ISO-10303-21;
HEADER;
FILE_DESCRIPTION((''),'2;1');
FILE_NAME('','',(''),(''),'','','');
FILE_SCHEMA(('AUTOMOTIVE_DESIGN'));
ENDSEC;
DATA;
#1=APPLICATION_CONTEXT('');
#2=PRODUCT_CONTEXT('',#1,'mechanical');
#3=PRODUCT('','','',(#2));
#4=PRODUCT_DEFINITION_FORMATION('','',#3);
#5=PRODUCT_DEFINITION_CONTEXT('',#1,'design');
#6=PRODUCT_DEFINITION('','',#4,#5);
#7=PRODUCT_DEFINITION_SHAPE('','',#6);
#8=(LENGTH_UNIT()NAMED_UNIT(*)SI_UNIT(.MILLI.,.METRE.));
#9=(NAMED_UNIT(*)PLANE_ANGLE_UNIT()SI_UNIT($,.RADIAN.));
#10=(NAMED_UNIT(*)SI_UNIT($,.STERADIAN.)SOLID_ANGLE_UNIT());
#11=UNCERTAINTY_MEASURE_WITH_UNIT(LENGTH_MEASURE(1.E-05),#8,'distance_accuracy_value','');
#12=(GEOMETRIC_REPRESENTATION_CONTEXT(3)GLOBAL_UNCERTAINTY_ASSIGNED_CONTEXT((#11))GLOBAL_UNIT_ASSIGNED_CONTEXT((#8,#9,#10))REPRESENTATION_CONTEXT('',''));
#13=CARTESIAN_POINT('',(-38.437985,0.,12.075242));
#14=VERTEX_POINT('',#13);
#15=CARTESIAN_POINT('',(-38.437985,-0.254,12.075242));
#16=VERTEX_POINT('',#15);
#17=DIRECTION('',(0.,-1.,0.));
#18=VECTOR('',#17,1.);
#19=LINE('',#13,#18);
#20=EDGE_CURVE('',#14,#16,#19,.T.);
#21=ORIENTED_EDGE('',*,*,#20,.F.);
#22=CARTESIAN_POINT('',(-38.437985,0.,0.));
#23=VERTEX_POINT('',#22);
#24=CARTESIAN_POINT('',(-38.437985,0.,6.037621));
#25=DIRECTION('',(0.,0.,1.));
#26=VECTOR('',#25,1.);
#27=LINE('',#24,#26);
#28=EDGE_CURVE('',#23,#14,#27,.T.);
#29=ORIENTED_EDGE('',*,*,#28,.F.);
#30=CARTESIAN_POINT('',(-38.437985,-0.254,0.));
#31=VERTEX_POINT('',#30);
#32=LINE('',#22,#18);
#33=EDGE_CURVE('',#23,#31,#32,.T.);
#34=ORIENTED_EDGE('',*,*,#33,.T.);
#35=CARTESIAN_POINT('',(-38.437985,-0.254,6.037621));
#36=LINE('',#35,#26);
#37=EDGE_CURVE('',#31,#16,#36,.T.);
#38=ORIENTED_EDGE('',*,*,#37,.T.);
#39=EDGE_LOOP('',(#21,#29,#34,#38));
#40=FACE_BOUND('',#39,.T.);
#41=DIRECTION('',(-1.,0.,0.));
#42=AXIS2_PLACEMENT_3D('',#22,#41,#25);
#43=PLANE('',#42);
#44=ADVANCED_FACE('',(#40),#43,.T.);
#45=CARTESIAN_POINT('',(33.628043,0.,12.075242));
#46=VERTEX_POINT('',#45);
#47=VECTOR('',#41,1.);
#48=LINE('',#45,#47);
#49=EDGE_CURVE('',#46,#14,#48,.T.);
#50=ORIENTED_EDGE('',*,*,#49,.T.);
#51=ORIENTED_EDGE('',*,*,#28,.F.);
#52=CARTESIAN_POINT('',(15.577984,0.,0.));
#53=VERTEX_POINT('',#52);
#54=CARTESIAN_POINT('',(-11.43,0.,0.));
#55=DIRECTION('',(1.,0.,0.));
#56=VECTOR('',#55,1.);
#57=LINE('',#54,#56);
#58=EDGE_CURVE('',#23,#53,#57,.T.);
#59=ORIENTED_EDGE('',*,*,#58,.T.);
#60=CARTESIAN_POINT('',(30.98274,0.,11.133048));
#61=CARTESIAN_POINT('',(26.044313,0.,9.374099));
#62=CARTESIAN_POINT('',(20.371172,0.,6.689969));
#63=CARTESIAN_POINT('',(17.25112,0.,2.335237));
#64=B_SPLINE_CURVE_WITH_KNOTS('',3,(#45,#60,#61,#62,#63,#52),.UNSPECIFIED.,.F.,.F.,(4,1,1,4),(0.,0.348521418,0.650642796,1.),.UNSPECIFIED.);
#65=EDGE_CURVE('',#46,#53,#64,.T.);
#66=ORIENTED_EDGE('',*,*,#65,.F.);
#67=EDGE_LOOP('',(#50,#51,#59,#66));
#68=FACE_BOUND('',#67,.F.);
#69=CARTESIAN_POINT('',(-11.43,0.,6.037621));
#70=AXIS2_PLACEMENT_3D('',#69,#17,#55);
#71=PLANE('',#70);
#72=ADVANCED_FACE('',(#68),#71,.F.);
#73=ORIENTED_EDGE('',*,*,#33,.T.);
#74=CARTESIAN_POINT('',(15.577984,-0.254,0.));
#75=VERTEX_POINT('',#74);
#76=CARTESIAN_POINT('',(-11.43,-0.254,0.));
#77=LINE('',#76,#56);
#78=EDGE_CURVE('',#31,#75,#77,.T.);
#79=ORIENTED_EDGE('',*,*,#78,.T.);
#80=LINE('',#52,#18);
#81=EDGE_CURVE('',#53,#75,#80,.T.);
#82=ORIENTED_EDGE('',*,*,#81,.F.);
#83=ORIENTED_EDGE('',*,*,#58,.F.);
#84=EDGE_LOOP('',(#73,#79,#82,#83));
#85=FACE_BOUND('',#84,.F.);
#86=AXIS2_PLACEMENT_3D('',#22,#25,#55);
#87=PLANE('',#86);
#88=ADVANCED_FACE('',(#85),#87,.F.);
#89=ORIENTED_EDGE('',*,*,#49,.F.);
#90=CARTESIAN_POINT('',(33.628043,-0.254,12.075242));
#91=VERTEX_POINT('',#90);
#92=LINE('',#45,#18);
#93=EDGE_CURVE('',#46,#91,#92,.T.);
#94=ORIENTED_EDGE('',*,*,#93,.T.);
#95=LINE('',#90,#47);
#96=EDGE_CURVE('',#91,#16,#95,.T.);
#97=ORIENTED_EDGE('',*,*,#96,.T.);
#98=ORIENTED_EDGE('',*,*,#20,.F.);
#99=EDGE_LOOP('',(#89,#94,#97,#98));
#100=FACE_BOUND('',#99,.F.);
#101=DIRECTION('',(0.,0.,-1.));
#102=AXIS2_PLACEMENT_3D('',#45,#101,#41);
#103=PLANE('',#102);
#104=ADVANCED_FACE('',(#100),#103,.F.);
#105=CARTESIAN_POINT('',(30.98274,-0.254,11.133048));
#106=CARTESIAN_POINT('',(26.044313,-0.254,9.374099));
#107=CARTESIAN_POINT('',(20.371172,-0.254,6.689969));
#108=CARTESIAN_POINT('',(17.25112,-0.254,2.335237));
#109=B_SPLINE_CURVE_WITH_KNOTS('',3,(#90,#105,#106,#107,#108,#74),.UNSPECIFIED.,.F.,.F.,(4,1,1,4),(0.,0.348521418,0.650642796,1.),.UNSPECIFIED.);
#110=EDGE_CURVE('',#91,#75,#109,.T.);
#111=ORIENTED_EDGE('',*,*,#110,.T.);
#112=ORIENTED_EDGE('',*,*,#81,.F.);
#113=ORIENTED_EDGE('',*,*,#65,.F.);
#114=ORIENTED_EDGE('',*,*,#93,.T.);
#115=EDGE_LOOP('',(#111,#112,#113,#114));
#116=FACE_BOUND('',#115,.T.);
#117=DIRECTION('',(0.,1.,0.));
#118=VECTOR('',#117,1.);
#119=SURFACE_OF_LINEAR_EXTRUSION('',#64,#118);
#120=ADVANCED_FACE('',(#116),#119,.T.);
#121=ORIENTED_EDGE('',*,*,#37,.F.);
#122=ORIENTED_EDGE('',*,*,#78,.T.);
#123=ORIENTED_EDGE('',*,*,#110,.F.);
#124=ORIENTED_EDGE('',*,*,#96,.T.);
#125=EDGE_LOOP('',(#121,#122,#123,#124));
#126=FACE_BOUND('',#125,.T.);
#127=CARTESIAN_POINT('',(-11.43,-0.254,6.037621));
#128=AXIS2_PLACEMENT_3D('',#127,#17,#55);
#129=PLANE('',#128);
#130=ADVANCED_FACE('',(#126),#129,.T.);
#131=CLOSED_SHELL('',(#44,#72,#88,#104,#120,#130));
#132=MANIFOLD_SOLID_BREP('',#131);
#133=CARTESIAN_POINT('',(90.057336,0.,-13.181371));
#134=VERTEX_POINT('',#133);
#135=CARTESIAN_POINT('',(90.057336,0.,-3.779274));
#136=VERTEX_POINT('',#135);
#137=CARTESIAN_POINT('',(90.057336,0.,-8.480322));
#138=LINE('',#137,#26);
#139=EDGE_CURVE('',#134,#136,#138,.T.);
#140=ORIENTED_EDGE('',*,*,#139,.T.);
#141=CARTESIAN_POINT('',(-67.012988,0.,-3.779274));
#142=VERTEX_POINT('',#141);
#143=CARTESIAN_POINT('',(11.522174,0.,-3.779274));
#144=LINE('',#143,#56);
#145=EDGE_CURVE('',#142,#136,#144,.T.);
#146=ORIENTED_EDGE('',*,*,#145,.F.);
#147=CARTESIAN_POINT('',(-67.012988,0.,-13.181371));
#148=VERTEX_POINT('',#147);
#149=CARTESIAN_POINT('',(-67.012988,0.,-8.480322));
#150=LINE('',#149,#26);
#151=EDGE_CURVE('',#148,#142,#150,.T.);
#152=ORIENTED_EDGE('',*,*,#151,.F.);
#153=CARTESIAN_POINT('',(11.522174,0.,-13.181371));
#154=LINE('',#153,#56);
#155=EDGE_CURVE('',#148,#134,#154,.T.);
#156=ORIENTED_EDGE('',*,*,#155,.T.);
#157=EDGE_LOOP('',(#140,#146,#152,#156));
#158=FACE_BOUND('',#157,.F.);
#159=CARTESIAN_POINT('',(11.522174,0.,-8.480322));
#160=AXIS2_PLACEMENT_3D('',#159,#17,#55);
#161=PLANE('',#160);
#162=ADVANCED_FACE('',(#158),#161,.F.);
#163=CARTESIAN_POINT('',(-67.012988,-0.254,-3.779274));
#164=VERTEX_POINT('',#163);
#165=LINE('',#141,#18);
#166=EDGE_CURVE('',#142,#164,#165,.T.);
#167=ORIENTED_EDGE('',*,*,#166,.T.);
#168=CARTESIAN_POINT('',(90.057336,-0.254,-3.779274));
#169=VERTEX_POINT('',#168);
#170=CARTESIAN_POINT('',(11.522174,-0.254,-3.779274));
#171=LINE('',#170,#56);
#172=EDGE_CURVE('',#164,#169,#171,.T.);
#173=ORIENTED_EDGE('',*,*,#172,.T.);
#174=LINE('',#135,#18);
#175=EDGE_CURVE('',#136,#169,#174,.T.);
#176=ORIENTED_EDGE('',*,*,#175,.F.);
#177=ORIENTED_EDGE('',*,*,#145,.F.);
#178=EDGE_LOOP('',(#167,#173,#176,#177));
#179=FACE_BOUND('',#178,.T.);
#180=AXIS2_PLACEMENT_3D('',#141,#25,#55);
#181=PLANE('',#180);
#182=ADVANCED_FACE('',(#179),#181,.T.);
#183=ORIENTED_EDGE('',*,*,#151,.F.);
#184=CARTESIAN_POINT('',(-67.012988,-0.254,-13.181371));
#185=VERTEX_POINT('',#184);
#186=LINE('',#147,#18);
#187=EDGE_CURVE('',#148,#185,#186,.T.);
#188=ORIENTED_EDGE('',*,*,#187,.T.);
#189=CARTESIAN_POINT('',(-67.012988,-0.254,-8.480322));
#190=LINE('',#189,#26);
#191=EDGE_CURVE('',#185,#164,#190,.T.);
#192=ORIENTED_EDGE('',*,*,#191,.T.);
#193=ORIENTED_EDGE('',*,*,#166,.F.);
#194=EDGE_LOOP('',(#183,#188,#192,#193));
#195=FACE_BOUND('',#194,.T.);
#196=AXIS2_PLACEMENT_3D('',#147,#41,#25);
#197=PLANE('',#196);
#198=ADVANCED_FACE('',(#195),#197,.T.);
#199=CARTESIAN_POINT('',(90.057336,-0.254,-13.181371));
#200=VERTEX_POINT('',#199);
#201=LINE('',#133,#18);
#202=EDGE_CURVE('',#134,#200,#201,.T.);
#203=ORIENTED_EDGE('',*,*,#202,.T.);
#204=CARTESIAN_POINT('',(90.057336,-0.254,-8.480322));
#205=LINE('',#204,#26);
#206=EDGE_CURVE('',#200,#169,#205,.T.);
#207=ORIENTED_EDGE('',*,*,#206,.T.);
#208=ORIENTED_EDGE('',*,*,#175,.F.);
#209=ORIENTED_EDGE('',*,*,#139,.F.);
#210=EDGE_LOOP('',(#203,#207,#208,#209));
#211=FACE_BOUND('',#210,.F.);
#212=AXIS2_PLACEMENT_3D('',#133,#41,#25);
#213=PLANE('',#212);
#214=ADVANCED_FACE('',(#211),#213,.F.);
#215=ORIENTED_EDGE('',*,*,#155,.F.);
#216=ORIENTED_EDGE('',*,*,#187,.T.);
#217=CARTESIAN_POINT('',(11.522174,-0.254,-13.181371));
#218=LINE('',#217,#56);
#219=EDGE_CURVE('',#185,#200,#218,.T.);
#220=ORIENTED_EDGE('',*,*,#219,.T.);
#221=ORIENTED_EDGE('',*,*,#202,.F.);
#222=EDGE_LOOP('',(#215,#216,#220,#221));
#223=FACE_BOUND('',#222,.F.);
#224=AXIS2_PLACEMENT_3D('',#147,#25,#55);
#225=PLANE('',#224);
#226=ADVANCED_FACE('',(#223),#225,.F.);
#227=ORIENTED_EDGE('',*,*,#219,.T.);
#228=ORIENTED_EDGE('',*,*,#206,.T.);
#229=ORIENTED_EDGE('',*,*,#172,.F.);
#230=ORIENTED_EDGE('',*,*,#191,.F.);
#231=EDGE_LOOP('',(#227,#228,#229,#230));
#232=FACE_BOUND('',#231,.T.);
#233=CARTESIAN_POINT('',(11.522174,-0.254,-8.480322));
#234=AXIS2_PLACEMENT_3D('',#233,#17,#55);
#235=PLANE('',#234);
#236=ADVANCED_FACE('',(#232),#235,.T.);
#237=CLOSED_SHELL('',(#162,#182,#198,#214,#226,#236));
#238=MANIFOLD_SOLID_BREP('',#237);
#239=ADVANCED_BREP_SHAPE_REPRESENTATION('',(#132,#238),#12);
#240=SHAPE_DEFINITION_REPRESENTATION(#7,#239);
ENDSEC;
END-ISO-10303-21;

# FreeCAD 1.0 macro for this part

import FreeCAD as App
import Part
import Sketcher

V = App.Vector
Q = App.Units.Quantity


def add_polygon(sketch, points):
    """Adds a closed chain of lines whose ends are joined by coincident constraints."""
    first, n = sketch.GeometryCount, len(points)
    for a, b in zip(points, points[1:] + points[:1]):
        sketch.addGeometry(Part.LineSegment(App.Vector(*a, 0), App.Vector(*b, 0)), False)
    for i in range(n):
        sketch.addConstraint(Sketcher.Constraint("Coincident", first + i, 2, first + (i + 1) % n, 1))

doc = App.newDocument("Part")
body = doc.addObject("PartDesign::Body", "Body")

# Sketch on XZ plane
sketch1 = doc.addObject("Sketcher::SketchObject", "Sketch")
body.addObject(sketch1)
sketch1.AttachmentSupport = (doc.XZ_Plane, [""])
sketch1.MapMode = "FlatFace"
sketch1.addGeometry([
    Part.LineSegment(V(-38.437985, 12.075242, 0), V(-38.437985, 0, 0)),
    Part.LineSegment(V(-38.437985, 0, 0), V(15.577984, 0, 0)),
    Part.BSplineCurve([V(33.628043, 12.075242, 0), V(30.98274, 11.133048, 0), V(26.044313, 9.374099, 0), V(20.371172, 6.689969, 0), V(17.25112, 2.335237, 0), V(15.577984, 0, 0)], [4, 1, 1, 4], [0, 0.348521418, 0.650642796, 1], False, 3, [1, 1, 1, 1, 1, 1], False),
    Part.LineSegment(V(33.628043, 12.075242, 0), V(-38.437985, 12.075242, 0)),
], False)
sketch1.addConstraint([
    Sketcher.Constraint("Block", 2),
    Sketcher.Constraint("Coincident", 0, 2, 1, 1),
    Sketcher.Constraint("Coincident", 1, 2, 2, 2),
    Sketcher.Constraint("Coincident", 2, 1, 3, 1),
    Sketcher.Constraint("Coincident", 3, 2, 0, 1),
    Sketcher.Constraint("Vertical", 0),
    Sketcher.Constraint("Horizontal", 1),
    Sketcher.Constraint("Horizontal", 3),
    Sketcher.Constraint("DistanceX", 1, 1, 1, 2, Q("54.015969 mm")),
])
pad1 = doc.addObject("PartDesign::Pad", "Pad")
body.addObject(pad1)
pad1.Profile = sketch1
pad1.Length = Q("0.01 in")
body2 = doc.addObject("PartDesign::Body", "Body001")

# Sketch on XZ plane
sketch2 = doc.addObject("Sketcher::SketchObject", "Sketch001")
body2.addObject(sketch2)
sketch2.AttachmentSupport = (doc.getObject("XZ_Plane001"), [""])
sketch2.MapMode = "FlatFace"
add_polygon(sketch2, [(-67.012988, -3.779274), (-67.012988, -13.181371), (90.057336, -13.181371), (90.057336, -3.779274)])  # lines 0-3
sketch2.addConstraint([
    Sketcher.Constraint("Vertical", 0),
    Sketcher.Constraint("Horizontal", 1),
    Sketcher.Constraint("Vertical", 2),
    Sketcher.Constraint("Horizontal", 3),
    Sketcher.Constraint("DistanceX", 1, 1, 1, 2, Q("157.070324 mm")),
    Sketcher.Constraint("DistanceY", 0, 2, 0, 1, Q("9.402097 mm")),
    Sketcher.Constraint("DistanceX", 0, 2, -1, 1, Q("67.012988 mm")),
    Sketcher.Constraint("DistanceY", 0, 2, -1, 1, Q("13.181371 mm")),
])
pad2 = doc.addObject("PartDesign::Pad", "Pad001")
body2.addObject(pad2)
pad2.Profile = sketch2
pad2.Length = Q("0.01 in")

doc.recompute()
